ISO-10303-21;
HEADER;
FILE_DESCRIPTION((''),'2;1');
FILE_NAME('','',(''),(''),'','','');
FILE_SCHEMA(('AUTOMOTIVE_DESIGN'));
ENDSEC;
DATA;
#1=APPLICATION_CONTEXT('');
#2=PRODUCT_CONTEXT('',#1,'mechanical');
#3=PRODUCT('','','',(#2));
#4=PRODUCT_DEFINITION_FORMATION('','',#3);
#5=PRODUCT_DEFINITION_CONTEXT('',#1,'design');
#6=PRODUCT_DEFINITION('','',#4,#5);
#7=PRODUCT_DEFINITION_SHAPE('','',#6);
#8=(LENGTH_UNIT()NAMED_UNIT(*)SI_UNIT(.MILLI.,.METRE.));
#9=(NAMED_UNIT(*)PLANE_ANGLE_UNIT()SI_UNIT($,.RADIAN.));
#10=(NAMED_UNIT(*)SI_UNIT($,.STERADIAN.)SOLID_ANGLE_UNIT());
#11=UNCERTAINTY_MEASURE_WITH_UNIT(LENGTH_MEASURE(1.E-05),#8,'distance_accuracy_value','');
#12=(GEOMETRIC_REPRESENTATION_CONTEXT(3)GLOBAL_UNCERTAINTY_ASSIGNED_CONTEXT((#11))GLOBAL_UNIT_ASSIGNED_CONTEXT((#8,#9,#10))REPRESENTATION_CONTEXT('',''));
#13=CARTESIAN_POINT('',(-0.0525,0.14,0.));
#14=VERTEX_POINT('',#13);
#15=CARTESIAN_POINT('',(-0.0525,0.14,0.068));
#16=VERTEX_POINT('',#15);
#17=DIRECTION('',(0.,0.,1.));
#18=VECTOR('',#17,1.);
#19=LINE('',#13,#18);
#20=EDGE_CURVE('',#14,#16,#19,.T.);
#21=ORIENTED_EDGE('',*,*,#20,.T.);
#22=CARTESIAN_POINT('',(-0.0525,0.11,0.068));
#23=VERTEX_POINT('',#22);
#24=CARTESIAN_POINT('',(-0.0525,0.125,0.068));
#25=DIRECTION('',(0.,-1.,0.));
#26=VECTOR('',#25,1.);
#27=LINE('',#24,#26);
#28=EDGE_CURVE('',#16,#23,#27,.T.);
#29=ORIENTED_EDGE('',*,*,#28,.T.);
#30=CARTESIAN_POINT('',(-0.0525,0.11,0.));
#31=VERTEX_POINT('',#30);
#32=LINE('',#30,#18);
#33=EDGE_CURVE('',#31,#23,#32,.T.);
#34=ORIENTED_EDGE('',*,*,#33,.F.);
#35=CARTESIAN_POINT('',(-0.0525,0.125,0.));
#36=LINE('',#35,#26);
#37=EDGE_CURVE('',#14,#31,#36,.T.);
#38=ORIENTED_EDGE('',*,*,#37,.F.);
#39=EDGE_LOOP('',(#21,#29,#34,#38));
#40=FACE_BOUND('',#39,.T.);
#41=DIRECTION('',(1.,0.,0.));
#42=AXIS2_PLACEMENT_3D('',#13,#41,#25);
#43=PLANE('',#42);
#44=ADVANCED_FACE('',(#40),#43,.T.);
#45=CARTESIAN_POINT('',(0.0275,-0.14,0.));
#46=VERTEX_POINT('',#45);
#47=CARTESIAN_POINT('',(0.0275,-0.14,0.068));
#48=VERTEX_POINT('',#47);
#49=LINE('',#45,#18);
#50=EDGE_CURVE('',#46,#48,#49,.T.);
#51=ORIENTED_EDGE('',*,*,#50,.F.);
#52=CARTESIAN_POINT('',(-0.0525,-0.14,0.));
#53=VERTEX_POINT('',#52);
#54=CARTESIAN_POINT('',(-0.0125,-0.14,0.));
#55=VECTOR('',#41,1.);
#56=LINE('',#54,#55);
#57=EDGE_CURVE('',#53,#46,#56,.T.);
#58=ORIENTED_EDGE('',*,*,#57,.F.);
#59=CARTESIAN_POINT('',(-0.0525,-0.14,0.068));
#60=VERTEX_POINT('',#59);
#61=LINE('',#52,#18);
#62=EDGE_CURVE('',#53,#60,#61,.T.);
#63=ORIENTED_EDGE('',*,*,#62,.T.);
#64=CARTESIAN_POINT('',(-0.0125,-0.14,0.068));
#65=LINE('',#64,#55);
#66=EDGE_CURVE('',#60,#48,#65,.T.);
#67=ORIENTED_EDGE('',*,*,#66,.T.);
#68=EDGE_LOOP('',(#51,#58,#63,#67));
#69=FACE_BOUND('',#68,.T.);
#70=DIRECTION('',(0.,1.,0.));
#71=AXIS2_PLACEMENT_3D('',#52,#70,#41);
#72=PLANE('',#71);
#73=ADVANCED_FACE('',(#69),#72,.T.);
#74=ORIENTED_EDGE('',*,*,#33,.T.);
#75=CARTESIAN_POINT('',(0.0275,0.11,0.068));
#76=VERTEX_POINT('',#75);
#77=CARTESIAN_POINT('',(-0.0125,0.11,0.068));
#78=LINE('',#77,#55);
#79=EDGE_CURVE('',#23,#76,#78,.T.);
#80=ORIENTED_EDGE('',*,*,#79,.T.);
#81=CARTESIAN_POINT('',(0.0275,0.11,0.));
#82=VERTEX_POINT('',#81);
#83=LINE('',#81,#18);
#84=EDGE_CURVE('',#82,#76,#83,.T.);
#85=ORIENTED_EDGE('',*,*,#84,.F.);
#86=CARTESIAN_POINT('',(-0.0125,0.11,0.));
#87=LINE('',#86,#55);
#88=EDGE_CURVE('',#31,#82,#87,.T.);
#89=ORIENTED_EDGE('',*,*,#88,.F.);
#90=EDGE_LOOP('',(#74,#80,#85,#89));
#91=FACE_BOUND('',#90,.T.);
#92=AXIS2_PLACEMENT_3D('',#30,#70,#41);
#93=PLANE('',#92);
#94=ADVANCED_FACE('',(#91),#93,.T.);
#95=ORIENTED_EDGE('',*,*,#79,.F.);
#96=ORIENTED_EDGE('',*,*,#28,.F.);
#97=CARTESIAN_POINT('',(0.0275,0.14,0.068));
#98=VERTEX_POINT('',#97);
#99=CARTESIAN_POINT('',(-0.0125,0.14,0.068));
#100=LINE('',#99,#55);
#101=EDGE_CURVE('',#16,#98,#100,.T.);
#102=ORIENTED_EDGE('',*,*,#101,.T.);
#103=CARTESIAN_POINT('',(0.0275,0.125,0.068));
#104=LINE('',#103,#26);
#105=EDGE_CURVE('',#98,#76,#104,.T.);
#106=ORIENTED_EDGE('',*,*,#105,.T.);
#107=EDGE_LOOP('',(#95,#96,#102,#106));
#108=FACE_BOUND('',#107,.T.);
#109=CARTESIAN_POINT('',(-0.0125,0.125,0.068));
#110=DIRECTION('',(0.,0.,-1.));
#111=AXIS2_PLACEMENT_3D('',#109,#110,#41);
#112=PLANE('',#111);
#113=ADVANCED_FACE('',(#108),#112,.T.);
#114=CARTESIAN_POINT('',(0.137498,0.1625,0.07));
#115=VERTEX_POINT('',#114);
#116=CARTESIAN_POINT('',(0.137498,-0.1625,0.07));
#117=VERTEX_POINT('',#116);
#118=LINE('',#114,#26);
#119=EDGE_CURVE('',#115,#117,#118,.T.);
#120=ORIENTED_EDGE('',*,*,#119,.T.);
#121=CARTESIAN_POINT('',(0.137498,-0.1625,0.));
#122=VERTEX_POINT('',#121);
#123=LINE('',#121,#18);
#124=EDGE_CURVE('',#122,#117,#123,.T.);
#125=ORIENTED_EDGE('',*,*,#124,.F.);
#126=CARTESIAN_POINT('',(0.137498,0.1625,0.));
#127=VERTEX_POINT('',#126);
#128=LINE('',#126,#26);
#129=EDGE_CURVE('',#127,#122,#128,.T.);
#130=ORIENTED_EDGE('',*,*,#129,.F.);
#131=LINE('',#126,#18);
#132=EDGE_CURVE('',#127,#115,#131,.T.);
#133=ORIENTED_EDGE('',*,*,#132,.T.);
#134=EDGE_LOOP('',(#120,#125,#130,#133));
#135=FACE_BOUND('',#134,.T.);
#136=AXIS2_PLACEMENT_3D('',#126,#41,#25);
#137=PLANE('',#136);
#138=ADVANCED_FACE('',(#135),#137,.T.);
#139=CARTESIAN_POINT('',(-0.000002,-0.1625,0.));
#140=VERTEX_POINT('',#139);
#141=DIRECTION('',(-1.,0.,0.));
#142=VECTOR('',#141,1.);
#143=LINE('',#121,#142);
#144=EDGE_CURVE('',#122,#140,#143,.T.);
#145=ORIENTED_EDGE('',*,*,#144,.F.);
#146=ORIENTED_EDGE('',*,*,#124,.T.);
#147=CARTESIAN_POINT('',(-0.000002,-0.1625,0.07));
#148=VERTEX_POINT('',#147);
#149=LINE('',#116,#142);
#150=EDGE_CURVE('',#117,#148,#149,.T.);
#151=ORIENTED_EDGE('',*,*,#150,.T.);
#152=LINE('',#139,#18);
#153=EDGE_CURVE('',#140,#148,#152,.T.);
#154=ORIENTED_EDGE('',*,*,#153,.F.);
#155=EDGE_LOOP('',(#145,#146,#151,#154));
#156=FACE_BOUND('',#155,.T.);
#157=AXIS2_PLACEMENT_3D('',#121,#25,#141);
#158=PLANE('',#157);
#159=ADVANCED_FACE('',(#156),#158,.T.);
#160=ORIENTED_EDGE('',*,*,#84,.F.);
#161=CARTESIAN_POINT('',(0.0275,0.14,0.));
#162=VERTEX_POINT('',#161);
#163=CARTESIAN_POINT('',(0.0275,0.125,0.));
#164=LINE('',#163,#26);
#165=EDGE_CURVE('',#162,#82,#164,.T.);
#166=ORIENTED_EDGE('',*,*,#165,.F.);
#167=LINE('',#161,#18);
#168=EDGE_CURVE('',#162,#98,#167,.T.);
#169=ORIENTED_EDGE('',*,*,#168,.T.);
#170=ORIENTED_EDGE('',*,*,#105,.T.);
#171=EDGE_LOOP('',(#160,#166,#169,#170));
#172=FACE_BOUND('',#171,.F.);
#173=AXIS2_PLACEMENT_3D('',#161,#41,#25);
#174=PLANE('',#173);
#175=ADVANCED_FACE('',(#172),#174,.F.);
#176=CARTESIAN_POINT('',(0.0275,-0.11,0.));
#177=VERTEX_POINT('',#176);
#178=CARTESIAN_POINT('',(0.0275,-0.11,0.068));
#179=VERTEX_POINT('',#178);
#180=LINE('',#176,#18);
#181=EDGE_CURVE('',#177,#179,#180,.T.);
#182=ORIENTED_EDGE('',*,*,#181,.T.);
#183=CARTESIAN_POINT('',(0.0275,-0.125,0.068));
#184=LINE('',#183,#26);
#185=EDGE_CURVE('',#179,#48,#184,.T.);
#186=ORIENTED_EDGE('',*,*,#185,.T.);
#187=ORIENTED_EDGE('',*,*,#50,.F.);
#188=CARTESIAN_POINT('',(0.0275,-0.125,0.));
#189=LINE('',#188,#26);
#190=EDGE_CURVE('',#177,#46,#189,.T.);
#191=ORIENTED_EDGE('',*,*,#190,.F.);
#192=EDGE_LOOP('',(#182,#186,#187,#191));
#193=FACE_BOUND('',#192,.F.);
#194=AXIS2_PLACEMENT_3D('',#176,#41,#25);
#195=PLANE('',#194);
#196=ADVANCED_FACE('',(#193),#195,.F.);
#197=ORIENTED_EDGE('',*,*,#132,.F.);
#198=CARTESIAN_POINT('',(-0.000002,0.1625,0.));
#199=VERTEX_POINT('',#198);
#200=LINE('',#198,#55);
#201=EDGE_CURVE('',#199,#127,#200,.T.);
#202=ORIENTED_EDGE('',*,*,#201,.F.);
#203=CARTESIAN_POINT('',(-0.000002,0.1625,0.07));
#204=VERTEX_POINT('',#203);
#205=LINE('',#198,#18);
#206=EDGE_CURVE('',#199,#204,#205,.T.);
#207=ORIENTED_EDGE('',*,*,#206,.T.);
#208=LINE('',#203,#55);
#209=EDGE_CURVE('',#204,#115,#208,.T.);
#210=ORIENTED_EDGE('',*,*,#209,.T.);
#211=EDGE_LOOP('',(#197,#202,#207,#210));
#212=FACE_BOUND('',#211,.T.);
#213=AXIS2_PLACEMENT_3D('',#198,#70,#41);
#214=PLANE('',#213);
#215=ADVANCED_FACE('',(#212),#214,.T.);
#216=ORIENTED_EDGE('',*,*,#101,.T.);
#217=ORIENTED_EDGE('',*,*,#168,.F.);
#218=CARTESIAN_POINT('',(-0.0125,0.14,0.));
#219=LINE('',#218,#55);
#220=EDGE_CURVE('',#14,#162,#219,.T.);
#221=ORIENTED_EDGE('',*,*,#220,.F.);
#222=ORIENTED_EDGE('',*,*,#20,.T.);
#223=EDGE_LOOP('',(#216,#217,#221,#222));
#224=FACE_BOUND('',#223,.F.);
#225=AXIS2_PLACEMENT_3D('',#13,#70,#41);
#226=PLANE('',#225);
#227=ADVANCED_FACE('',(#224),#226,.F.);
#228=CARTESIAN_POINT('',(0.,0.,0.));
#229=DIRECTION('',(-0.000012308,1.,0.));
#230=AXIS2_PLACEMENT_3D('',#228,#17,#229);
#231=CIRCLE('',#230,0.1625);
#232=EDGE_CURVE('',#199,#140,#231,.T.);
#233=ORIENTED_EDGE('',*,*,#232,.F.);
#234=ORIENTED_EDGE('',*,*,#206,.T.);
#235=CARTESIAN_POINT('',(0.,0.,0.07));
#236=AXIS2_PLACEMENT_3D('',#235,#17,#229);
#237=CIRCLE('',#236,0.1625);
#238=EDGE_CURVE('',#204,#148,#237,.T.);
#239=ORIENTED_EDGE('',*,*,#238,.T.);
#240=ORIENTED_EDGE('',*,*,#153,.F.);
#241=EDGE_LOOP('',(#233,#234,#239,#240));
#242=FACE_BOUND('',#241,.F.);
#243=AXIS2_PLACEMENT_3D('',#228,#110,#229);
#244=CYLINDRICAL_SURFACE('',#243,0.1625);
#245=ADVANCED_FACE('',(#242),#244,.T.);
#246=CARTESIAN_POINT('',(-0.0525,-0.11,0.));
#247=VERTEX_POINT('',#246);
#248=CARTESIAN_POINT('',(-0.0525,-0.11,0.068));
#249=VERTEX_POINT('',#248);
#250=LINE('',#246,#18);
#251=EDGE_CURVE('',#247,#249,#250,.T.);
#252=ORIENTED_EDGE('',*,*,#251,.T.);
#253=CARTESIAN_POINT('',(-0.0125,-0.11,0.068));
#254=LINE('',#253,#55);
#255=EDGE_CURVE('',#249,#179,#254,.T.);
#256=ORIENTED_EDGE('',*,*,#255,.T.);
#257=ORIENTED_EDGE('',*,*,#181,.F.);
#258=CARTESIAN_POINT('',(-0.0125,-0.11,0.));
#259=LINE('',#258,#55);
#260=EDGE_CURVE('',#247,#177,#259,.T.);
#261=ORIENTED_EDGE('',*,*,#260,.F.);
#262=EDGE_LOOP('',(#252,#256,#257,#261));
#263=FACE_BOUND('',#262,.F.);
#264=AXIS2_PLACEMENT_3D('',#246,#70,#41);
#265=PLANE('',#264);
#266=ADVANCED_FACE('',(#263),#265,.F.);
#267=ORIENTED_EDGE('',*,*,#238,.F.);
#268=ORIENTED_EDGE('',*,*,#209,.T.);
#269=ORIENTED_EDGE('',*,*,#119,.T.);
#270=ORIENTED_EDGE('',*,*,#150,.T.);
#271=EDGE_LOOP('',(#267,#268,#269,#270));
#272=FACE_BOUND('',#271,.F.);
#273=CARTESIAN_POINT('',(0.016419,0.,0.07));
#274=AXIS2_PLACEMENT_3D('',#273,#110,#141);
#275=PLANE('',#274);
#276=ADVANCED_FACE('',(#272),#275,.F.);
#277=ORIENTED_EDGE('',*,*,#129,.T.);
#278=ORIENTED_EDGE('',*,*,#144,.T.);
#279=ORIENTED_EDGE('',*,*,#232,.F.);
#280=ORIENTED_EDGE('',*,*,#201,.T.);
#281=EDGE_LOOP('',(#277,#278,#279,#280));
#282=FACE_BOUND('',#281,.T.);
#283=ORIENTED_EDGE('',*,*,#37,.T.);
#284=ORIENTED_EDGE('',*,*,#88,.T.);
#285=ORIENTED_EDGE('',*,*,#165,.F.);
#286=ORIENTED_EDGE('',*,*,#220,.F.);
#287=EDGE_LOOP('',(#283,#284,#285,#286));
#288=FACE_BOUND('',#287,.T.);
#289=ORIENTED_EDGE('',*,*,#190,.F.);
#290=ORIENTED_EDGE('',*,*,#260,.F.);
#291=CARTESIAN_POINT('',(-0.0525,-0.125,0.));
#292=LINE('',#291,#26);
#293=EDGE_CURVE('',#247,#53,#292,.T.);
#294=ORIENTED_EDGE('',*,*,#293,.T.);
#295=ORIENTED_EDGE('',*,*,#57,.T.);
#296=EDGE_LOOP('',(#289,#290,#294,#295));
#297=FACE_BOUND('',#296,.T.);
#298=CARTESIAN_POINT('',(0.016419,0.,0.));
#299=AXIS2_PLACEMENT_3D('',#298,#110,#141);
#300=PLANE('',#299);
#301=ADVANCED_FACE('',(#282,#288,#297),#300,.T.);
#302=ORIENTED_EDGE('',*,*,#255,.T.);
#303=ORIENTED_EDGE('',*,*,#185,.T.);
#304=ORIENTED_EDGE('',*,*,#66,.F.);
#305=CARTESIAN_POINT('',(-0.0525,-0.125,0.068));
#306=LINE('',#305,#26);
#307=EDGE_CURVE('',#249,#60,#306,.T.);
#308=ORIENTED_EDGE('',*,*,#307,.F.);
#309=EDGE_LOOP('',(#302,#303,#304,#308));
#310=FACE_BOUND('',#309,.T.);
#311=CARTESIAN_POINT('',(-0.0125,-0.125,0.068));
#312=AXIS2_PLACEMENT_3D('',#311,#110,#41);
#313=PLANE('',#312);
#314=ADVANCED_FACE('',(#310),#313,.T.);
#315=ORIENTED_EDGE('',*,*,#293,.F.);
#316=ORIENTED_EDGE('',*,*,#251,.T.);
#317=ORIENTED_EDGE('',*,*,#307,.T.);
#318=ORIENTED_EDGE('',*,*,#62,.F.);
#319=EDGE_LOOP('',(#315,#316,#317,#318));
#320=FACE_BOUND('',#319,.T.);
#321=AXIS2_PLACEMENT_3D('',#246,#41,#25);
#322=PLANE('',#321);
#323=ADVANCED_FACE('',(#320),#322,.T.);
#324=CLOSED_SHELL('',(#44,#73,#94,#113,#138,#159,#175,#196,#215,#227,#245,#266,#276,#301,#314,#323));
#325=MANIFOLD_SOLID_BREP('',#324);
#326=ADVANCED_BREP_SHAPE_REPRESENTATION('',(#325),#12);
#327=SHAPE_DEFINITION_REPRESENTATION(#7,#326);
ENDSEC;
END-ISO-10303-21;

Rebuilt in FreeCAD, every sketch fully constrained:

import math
import FreeCAD as App
import Part
import Sketcher
from FreeCAD import Vector


def add_polygon(sketch, points):
    """Adds a closed chain of lines whose ends are joined by coincident constraints."""
    first, n = sketch.GeometryCount, len(points)
    for a, b in zip(points, points[1:] + points[:1]):
        sketch.addGeometry(Part.LineSegment(App.Vector(*a, 0), App.Vector(*b, 0)), False)
    for i in range(n):
        sketch.addConstraint(Sketcher.Constraint("Coincident", first + i, 2, first + (i + 1) % n, 1))

doc = App.newDocument("Part")
params = doc.addObject("Spreadsheet::Sheet", "Params")
for row, (alias, value) in enumerate([
    ("pad1_length", "0.07 mm"),
    ("sketch2_width", "0.08 mm"),
    ("sketch2_height", "0.03 mm"),
    ("pocket1_length", "0.068 mm"),
], start=1):
    params.set(f"A{row}", alias)
    params.set(f"B{row}", "=" + value)
    params.setAlias(f"B{row}", alias)

body = doc.addObject("PartDesign::Body", "Body")

sketch1 = body.newObject("Sketcher::SketchObject", "Sketch")
sketch1.AttachmentSupport = (doc.getObject("XY_Plane"), [""])
sketch1.MapMode = "FlatFace"
sketch1.addGeometry([
    Part.LineSegment(Vector(0.137498, 0.1625, 0), Vector(-0.000002, 0.1625, 0)),
    Part.ArcOfCircle(Part.Circle(Vector(0, 0, 0), Vector(0, 0, 1), 0.1625), math.radians(90.000705), math.radians(269.999295)),
    Part.LineSegment(Vector(-0.000002, -0.1625, 0), Vector(0.137498, -0.1625, 0)),
    Part.LineSegment(Vector(0.137498, -0.1625, 0), Vector(0.137498, 0.1625, 0)),
], False)
sketch1.addConstraint([
    Sketcher.Constraint("Coincident", 0, 2, 1, 1),
    Sketcher.Constraint("Coincident", 1, 2, 2, 1),
    Sketcher.Constraint("Coincident", 2, 2, 3, 1),
    Sketcher.Constraint("Coincident", 3, 2, 0, 1),
    Sketcher.Constraint("Horizontal", 0),
    Sketcher.Constraint("Horizontal", 2),
    Sketcher.Constraint("Vertical", 3),
    Sketcher.Constraint("Coincident", 1, 3, -1, 1),
    Sketcher.Constraint("PointOnObject", 1, 2, -2),
    Sketcher.Constraint("Vertical", 0, 2, 1, 2),
    Sketcher.Constraint("Radius", 1, 0.1625),
    Sketcher.Constraint("DistanceX", 0, 2, 0, 1, 0.1375),
])
pad1 = body.newObject("PartDesign::Pad", "Pad")
pad1.Profile = sketch1
pad1.setExpression("Length", "Params.pad1_length")

sketch2 = body.newObject("Sketcher::SketchObject", "Sketch001")
sketch2.AttachmentSupport = (doc.getObject("XY_Plane"), [""])
sketch2.MapMode = "FlatFace"
add_polygon(sketch2, [(-0.0525, -0.14), (-0.0525, -0.11), (0.0275, -0.11), (0.0275, -0.14)])
add_polygon(sketch2, [(-0.0525, 0.11), (-0.0525, 0.14), (0.0275, 0.14), (0.0275, 0.11)])
sketch2.addConstraint([
    Sketcher.Constraint("Vertical", 0),
    Sketcher.Constraint("Horizontal", 1),
    Sketcher.Constraint("Vertical", 2),
    Sketcher.Constraint("Horizontal", 3),
    Sketcher.Constraint("Vertical", 4),
    Sketcher.Constraint("Horizontal", 5),
    Sketcher.Constraint("Vertical", 6),
    Sketcher.Constraint("Horizontal", 7),
    Sketcher.Constraint("Symmetric", 3, 2, 4, 2, -1),
    Sketcher.Constraint("Symmetric", 1, 2, 6, 2, -1),
    Sketcher.Constraint("DistanceX", 1, 1, 1, 2, 0.08),
    Sketcher.Constraint("DistanceY", 0, 1, 0, 2, 0.03),
    Sketcher.Constraint("DistanceY", 0, 2, -1, 1, 0.11),
    Sketcher.Constraint("DistanceX", 0, 2, -1, 1, 0.0525),
])
sketch2.setExpression("Constraints[18]", "Params.sketch2_width")
sketch2.setExpression("Constraints[19]", "Params.sketch2_height")
pocket1 = body.newObject("PartDesign::Pocket", "Pocket")
pocket1.Profile = sketch2
pocket1.setExpression("Length", "Params.pocket1_length")
pocket1.Reversed = True

doc.recompute()
